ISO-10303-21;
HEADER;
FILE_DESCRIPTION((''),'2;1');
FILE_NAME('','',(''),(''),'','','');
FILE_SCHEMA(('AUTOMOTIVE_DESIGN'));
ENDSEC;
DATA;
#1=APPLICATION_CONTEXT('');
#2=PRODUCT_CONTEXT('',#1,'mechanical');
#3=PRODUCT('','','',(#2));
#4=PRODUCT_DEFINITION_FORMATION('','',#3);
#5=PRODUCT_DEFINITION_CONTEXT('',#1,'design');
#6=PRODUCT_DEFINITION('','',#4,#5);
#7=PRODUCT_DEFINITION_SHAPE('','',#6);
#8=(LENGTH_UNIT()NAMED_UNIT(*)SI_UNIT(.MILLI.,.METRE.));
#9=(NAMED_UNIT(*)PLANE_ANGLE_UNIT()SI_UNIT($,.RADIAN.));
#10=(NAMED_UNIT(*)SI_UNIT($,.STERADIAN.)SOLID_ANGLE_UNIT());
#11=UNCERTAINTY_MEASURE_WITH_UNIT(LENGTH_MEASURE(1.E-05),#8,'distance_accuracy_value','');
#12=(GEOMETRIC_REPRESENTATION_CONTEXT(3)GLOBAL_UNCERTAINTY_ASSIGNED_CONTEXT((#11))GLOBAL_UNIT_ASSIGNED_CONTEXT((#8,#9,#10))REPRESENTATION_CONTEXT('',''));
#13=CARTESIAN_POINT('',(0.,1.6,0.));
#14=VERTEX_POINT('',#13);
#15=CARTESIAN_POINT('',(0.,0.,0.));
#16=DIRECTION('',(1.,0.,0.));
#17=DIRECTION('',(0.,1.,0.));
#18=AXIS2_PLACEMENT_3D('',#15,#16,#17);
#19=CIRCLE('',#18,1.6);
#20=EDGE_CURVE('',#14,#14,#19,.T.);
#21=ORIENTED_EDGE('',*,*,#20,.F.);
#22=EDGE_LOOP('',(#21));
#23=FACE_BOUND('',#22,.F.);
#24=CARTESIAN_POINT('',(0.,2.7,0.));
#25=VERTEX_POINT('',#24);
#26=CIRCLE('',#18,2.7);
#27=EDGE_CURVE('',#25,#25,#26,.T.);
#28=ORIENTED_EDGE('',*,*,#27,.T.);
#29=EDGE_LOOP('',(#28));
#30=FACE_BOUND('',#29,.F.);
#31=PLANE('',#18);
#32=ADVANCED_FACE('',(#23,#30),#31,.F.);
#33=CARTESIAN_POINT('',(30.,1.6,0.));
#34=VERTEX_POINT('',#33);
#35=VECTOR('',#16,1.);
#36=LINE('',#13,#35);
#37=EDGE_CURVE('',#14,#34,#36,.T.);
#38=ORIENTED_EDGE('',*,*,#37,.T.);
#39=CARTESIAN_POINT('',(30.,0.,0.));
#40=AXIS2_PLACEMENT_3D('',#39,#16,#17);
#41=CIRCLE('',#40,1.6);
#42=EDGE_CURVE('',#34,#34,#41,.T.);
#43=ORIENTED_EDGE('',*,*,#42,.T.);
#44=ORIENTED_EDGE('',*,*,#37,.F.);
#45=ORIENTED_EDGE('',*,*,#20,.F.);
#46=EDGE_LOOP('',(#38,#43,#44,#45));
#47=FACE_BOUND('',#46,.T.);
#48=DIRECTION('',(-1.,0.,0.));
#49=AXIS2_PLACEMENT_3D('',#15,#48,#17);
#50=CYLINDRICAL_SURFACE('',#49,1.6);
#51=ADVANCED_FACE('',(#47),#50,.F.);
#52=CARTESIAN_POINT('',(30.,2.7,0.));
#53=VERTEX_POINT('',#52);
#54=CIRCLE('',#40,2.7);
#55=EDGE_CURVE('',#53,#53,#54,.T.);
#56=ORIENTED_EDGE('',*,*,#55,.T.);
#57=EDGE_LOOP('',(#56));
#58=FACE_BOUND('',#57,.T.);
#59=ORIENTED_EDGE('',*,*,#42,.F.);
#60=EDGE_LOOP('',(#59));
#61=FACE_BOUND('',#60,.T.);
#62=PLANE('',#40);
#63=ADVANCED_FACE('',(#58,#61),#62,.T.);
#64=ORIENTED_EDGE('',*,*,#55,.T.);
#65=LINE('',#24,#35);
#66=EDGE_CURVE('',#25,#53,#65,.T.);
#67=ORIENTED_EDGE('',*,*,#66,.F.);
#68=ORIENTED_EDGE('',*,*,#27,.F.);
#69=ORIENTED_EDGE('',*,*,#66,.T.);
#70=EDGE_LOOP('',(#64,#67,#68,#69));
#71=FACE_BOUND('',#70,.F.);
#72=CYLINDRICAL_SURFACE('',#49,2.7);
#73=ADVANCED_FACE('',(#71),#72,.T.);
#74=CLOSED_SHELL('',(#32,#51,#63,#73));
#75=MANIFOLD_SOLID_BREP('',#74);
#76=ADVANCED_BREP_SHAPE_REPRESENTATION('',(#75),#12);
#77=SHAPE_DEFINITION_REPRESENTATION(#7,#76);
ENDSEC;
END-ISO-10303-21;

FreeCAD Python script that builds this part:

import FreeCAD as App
import Part
import Sketcher

V = App.Vector
Q = App.Units.Quantity

doc = App.newDocument("Part")
body = doc.addObject("PartDesign::Body", "Body")

# Sketch on YZ plane
sketch1 = body.newObject("Sketcher::SketchObject", "Sketch")
sketch1.AttachmentSupport = (doc.getObject("YZ_Plane"), [""])
sketch1.MapMode = "FlatFace"
sketch1.addGeometry([
    Part.Circle(V(0, 0, 0), V(0, 0, 1), 2.7),
    Part.Circle(V(0, 0, 0), V(0, 0, 1), 1.6),
], False)
sketch1.addConstraint([
    Sketcher.Constraint("Coincident", 0, 3, -1, 1),
    Sketcher.Constraint("Coincident", 1, 3, -1, 1),
    Sketcher.Constraint("Diameter", 0, Q("5.4 mm")),
    Sketcher.Constraint("Diameter", 1, Q("3.2 mm")),
])
pad1 = body.newObject("PartDesign::Pad", "Pad")
pad1.Profile = sketch1
pad1.Length = 30

doc.recompute()
